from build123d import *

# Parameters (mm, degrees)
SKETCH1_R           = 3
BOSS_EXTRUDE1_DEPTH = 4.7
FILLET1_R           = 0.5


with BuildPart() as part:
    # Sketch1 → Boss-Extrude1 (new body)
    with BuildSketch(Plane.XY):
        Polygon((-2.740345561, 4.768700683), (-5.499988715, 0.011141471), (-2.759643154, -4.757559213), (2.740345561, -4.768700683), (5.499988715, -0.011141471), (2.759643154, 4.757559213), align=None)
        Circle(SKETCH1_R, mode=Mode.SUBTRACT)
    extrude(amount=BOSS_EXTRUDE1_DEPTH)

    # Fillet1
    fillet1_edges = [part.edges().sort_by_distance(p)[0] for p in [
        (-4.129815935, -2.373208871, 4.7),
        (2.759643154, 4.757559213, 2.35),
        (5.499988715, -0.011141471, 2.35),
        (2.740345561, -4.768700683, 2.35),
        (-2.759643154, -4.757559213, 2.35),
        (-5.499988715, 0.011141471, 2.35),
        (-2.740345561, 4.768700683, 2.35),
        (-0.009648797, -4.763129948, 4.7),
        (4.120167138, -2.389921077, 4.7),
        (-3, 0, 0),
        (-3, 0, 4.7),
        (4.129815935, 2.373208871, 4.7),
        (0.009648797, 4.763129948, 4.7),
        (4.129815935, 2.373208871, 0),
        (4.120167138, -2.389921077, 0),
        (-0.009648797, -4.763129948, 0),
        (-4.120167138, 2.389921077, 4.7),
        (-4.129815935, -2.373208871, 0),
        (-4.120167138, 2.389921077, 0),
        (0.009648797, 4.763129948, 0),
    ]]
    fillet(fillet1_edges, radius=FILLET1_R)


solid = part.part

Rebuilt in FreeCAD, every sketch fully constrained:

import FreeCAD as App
import Part
import Sketcher

V = App.Vector
Q = App.Units.Quantity

doc = App.newDocument("Part")
body = doc.addObject("PartDesign::Body", "Body")

# Sketch on XY plane
sketch1 = body.newObject("Sketcher::SketchObject", "Sketch")
sketch1.AttachmentSupport = (doc.getObject("XY_Plane"), [""])
sketch1.MapMode = "FlatFace"
sketch1.addGeometry([
    Part.LineSegment(V(-2.740346, 4.768701, 0), V(-5.499989, 0.011141, 0)),  # 0
    Part.LineSegment(V(-5.499989, 0.011141, 0), V(-2.759643, -4.757559, 0)),  # 1
    Part.LineSegment(V(-2.759643, -4.757559, 0), V(2.740346, -4.768701, 0)),  # 2
    Part.LineSegment(V(2.740346, -4.768701, 0), V(5.499989, -0.011141, 0)),  # 3
    Part.LineSegment(V(5.499989, -0.011141, 0), V(2.759643, 4.757559, 0)),  # 4
    Part.LineSegment(V(2.759643, 4.757559, 0), V(-2.740346, 4.768701, 0)),  # 5
    Part.Circle(V(0, 0, 0), V(0, 0, 1), 3),  # 6
], False)
sketch1.addConstraint([
    Sketcher.Constraint("Coincident", 0, 2, 1, 1),
    Sketcher.Constraint("Coincident", 1, 2, 2, 1),
    Sketcher.Constraint("Coincident", 2, 2, 3, 1),
    Sketcher.Constraint("Coincident", 3, 2, 4, 1),
    Sketcher.Constraint("Coincident", 4, 2, 5, 1),
    Sketcher.Constraint("Coincident", 5, 2, 0, 1),
    Sketcher.Constraint("Coincident", 6, 3, -1, 1),
    Sketcher.Constraint("Symmetric", 0, 2, 3, 2, -1, 1),
    Sketcher.Constraint("Symmetric", 1, 2, 4, 2, -1, 1),
    Sketcher.Constraint("Symmetric", 2, 2, 5, 2, -1, 1),
    Sketcher.Constraint("Equal", 0, 1),
    Sketcher.Constraint("Equal", 1, 2),
    Sketcher.Constraint("Diameter", 6, Q("6 mm")),
    Sketcher.Constraint("Distance", 0, Q("5.5 mm")),
    Sketcher.Constraint("DistanceY", 2, 2, -1, 1, Q("4.768701 mm")),
    Sketcher.Constraint("DistanceY", 1, 2, 0, 2, Q("4.768701 mm")),
    Sketcher.Constraint("DistanceX", 0, 2, -1, 1, Q("5.499989 mm")),
])
pad1 = body.newObject("PartDesign::Pad", "Pad")
pad1.Profile = sketch1
pad1.Length = 4.7
doc.recompute()

fillet = body.newObject("PartDesign::Fillet", "Fillet")
fillet.Base = (pad1, ["Edge1"])
fillet.UseAllEdges = True
fillet.Radius = 0.5

doc.recompute()
